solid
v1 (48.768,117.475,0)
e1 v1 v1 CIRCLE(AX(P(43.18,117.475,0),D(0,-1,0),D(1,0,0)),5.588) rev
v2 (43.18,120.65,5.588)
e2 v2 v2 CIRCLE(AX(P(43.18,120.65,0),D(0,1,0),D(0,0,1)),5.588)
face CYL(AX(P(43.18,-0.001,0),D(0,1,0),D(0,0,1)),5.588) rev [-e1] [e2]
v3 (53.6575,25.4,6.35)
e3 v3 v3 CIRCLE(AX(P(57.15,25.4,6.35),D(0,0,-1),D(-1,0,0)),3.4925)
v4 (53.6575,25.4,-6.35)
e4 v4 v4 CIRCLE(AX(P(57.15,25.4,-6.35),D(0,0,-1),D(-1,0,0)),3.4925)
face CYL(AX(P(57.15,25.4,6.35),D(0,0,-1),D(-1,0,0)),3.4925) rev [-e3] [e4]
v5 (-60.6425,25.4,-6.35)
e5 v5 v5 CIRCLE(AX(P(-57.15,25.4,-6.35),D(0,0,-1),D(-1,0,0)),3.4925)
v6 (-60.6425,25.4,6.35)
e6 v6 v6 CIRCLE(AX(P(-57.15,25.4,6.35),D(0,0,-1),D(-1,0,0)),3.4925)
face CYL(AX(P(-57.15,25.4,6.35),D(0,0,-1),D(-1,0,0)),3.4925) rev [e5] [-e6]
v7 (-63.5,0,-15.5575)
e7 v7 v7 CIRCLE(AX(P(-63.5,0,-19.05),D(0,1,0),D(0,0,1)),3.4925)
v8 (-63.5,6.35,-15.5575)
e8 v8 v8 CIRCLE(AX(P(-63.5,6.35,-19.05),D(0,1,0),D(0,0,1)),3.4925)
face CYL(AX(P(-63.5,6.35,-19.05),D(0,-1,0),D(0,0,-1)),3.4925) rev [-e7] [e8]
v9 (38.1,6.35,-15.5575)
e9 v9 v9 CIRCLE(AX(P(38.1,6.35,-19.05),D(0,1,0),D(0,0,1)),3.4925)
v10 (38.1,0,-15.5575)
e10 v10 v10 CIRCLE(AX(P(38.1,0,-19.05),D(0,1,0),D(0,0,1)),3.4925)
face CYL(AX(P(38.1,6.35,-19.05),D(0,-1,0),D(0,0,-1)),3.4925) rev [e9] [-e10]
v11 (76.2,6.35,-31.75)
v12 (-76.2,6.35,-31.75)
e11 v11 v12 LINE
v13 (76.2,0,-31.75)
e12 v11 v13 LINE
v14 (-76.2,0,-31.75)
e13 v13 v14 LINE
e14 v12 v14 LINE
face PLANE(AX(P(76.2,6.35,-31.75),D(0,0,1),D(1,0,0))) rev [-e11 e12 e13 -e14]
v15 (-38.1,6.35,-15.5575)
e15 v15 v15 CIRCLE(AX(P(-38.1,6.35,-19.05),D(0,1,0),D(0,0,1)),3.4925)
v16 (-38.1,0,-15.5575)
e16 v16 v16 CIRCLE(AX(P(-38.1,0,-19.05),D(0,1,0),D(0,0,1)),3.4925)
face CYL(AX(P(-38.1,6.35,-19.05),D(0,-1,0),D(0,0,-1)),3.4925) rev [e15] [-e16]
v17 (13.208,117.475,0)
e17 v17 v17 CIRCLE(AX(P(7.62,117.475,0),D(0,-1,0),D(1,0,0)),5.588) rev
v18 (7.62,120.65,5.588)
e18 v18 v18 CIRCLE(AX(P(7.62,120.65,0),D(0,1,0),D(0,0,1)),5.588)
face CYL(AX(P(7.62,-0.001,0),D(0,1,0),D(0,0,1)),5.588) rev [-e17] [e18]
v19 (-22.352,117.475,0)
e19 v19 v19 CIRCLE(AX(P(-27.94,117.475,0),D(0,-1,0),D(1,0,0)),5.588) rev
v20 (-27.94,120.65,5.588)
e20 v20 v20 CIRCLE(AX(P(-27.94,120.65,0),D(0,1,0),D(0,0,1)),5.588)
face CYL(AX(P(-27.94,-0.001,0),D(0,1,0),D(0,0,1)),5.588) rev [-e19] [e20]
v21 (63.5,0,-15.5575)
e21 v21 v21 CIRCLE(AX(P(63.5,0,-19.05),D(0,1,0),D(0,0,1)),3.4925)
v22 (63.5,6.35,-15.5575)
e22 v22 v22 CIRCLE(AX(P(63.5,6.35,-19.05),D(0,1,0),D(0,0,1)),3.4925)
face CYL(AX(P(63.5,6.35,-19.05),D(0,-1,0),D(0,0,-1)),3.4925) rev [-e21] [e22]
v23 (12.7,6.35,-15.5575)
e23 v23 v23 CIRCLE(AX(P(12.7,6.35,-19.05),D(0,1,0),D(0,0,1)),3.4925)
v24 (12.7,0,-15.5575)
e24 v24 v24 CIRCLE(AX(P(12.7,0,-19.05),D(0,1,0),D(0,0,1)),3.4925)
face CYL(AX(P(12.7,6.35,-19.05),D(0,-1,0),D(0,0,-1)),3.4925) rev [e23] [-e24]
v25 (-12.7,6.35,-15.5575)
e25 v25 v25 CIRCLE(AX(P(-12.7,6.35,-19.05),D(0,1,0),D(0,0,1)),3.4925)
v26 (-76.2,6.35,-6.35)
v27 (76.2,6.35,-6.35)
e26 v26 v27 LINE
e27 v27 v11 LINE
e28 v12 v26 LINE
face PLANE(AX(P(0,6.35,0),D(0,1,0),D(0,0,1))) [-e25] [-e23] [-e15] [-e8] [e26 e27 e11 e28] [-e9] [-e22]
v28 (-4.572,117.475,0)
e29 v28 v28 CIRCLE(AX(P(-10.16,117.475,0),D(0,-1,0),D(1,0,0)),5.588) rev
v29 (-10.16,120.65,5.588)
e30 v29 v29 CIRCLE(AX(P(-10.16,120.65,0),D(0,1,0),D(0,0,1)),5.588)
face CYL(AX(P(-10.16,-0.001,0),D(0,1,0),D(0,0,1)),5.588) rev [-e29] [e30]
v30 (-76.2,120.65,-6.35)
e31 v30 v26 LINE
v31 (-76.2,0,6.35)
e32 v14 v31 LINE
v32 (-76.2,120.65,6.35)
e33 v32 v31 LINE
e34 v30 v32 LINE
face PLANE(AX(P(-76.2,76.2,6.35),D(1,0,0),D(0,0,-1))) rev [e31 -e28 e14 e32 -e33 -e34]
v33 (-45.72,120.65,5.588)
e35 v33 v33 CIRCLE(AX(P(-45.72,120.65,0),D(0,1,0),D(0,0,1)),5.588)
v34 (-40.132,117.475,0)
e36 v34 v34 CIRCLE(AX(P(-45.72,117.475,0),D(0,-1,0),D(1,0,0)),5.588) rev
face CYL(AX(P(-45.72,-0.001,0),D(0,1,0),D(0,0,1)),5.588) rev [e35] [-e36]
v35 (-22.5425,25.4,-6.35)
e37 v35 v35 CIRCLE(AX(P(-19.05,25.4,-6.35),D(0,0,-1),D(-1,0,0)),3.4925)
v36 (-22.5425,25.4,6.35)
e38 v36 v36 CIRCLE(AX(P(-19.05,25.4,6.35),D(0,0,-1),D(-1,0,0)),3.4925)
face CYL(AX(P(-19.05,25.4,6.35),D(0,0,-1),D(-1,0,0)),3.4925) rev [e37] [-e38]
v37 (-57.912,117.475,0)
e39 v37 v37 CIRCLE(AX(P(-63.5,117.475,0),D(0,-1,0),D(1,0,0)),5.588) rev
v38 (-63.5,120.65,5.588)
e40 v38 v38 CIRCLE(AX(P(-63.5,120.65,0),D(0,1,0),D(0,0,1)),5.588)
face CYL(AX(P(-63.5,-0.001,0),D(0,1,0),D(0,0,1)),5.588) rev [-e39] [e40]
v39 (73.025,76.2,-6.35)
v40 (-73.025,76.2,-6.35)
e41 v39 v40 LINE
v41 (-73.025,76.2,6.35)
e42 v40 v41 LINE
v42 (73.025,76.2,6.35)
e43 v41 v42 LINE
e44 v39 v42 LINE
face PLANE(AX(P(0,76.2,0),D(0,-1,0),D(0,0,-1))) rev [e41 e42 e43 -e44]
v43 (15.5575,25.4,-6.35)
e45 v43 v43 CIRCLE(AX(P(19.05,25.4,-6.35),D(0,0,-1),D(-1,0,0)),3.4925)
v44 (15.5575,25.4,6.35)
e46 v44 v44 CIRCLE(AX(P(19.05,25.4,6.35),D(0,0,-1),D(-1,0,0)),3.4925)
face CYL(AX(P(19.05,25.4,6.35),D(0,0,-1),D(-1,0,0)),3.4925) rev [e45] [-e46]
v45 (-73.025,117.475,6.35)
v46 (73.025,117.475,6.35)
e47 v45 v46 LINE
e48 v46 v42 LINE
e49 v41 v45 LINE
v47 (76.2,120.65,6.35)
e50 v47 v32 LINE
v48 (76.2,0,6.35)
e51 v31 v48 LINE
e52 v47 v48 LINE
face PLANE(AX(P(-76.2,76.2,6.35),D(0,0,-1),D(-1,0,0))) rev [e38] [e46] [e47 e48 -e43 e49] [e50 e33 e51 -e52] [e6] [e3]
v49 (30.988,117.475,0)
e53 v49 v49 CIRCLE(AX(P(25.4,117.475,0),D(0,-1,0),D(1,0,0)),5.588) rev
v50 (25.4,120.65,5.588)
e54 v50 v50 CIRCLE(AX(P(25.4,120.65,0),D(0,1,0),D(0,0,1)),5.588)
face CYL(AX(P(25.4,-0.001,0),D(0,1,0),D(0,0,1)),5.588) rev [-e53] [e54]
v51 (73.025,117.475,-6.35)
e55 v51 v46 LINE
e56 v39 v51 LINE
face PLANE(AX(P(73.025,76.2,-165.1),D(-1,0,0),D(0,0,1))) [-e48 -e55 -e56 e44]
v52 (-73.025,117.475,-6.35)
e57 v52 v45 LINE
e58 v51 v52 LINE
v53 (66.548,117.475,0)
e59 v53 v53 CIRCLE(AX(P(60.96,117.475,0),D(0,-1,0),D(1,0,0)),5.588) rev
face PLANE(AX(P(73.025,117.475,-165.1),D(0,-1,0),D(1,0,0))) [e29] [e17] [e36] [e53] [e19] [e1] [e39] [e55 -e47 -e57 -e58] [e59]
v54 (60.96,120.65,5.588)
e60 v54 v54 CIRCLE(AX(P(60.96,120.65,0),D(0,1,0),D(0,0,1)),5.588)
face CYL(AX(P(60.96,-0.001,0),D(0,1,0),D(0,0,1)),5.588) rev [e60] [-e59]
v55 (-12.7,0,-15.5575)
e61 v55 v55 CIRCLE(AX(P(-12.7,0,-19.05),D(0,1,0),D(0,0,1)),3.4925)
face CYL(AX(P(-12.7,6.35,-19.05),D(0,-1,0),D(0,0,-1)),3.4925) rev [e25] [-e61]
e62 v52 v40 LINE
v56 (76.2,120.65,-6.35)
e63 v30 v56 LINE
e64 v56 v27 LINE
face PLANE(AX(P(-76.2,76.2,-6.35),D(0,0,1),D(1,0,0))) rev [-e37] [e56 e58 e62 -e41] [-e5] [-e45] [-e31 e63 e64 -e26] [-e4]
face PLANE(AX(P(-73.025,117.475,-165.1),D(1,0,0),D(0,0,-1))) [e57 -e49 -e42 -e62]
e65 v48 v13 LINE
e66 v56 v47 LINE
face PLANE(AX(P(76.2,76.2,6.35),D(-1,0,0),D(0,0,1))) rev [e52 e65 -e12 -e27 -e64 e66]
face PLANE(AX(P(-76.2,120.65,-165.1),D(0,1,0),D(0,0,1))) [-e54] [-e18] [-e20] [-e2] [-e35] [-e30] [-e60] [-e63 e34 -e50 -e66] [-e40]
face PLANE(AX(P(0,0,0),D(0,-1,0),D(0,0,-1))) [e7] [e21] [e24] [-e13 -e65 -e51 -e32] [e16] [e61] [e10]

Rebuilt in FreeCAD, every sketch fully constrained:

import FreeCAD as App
import Part
import Sketcher
from FreeCAD import Vector
Q = App.Units.Quantity

doc = App.newDocument("Part")
body = doc.addObject("PartDesign::Body", "Body")

# Sketch on XZ plane
sketch1 = body.newObject("Sketcher::SketchObject", "Sketch")
sketch1.AttachmentSupport = (doc.getObject("XZ_Plane"), [""])
sketch1.MapMode = "FlatFace"
sketch1.addGeometry([
    Part.LineSegment(Vector(-76.2, -6.35, 0), Vector(-76.2, 6.35, 0)),
    Part.LineSegment(Vector(-76.2, 6.35, 0), Vector(76.2, 6.35, 0)),
    Part.LineSegment(Vector(76.2, 6.35, 0), Vector(76.2, -6.35, 0)),
    Part.LineSegment(Vector(76.2, -6.35, 0), Vector(-76.2, -6.35, 0)),
], False)
sketch1.addConstraint([
    Sketcher.Constraint("Coincident", 0, 2, 1, 1),
    Sketcher.Constraint("Coincident", 1, 2, 2, 1),
    Sketcher.Constraint("Coincident", 2, 2, 3, 1),
    Sketcher.Constraint("Coincident", 3, 2, 0, 1),
    Sketcher.Constraint("Vertical", 0),
    Sketcher.Constraint("Horizontal", 1),
    Sketcher.Constraint("Vertical", 2),
    Sketcher.Constraint("Horizontal", 3),
    Sketcher.Constraint("Symmetric", 0, 2, 2, 2, -1, 1),
    Sketcher.Constraint("DistanceX", 1, 1, 1, 2, Q("6 in")),
    Sketcher.Constraint("DistanceY", 0, 1, 0, 2, Q("0.5 in")),
])
pad1 = body.newObject("PartDesign::Pad", "Pad")
pad1.Profile = sketch1
pad1.Length = Q("3 in")
pad1.Reversed = True

# Sketch on XZ plane
sketch2 = body.newObject("Sketcher::SketchObject", "Sketch001")
sketch2.AttachmentSupport = (doc.getObject("XZ_Plane"), [""])
sketch2.MapMode = "FlatFace"
sketch2.addGeometry([
    Part.LineSegment(Vector(-76.2, -6.35, 0), Vector(76.2, -6.35, 0)),  # 0
    Part.LineSegment(Vector(76.2, -6.35, 0), Vector(76.2, -31.75, 0)),  # 1
    Part.LineSegment(Vector(76.2, -31.75, 0), Vector(-76.2, -31.75, 0)),  # 2
    Part.LineSegment(Vector(-76.2, -31.75, 0), Vector(-76.2, -6.35, 0)),  # 3
    Part.Circle(Vector(-63.5, -19.05, 0), Vector(0, 0, 1), 3.4925),  # 4
    Part.Circle(Vector(-38.1, -19.05, 0), Vector(0, 0, 1), 3.4925),  # 5
    Part.Circle(Vector(-12.7, -19.05, 0), Vector(0, 0, 1), 3.4925),  # 6
    Part.Circle(Vector(12.7, -19.05, 0), Vector(0, 0, 1), 3.4925),  # 7
    Part.Circle(Vector(38.1, -19.05, 0), Vector(0, 0, 1), 3.4925),  # 8
    Part.Circle(Vector(63.5, -19.05, 0), Vector(0, 0, 1), 3.4925),  # 9
], False)
sketch2.addConstraint([
    Sketcher.Constraint("Coincident", 0, 2, 1, 1),
    Sketcher.Constraint("Coincident", 1, 2, 2, 1),
    Sketcher.Constraint("Coincident", 2, 2, 3, 1),
    Sketcher.Constraint("Coincident", 3, 2, 0, 1),
    Sketcher.Constraint("Horizontal", 0),
    Sketcher.Constraint("Vertical", 1),
    Sketcher.Constraint("Horizontal", 2),
    Sketcher.Constraint("Vertical", 3),
    Sketcher.Constraint("Equal", 4, 5),
    Sketcher.Constraint("Equal", 5, 6),
    Sketcher.Constraint("Equal", 6, 7),
    Sketcher.Constraint("Equal", 7, 8),
    Sketcher.Constraint("Equal", 8, 9),
    Sketcher.Constraint("Symmetric", 6, 3, 7, 3, -2),
    Sketcher.Constraint("Symmetric", 5, 3, 8, 3, -2),
    Sketcher.Constraint("Symmetric", 4, 3, 9, 3, -2),
    Sketcher.Constraint("Horizontal", 4, 3, 5, 3),
    Sketcher.Constraint("Horizontal", 5, 3, 6, 3),
    Sketcher.Constraint("DistanceX", 0, 1, 0, 2, Q("6 in")),
    Sketcher.Constraint("DistanceY", 1, 2, 1, 1, Q("1 in")),
    Sketcher.Constraint("Diameter", 4, Q("0.275 in")),
    Sketcher.Constraint("DistanceX", -1, 1, 0, 2, Q("3 in")),
    Sketcher.Constraint("DistanceX", 4, 3, 5, 3, Q("1 in")),
    Sketcher.Constraint("DistanceX", 5, 3, 6, 3, Q("1 in")),
    Sketcher.Constraint("DistanceX", 6, 3, 7, 3, Q("1 in")),
    Sketcher.Constraint("DistanceY", 9, 3, 0, 2, Q("0.5 in")),
    Sketcher.Constraint("DistanceY", 4, 3, -1, 1, Q("0.75 in")),
])
pad2 = body.newObject("PartDesign::Pad", "Pad001")
pad2.Profile = sketch2
pad2.Length = Q("0.25 in")
pad2.Reversed = True

# Sketch on XY plane
sketch3 = body.newObject("Sketcher::SketchObject", "Sketch002")
sketch3.AttachmentSupport = (doc.getObject("XY_Plane"), [""])
sketch3.MapMode = "FlatFace"
sketch3.AttachmentOffset = App.Placement(Vector(0, 0, 0.25 * 25.4), App.Rotation())
sketch3.addGeometry([
    Part.LineSegment(Vector(-76.2, 120.65, 0), Vector(-76.2, 76.2, 0)),  # 0
    Part.LineSegment(Vector(-76.2, 76.2, 0), Vector(-73.025, 76.2, 0)),  # 1
    Part.LineSegment(Vector(-73.025, 76.2, 0), Vector(-73.025, 117.475, 0)),  # 2
    Part.LineSegment(Vector(-73.025, 117.475, 0), Vector(73.025, 117.475, 0)),  # 3
    Part.LineSegment(Vector(73.025, 117.475, 0), Vector(73.025, 76.2, 0)),  # 4
    Part.LineSegment(Vector(73.025, 76.2, 0), Vector(76.2, 76.2, 0)),  # 5
    Part.LineSegment(Vector(76.2, 76.2, 0), Vector(76.2, 120.65, 0)),  # 6
    Part.LineSegment(Vector(76.2, 120.65, 0), Vector(-76.2, 120.65, 0)),  # 7
], False)
sketch3.addConstraint([
    Sketcher.Constraint("Coincident", 0, 2, 1, 1),
    Sketcher.Constraint("Coincident", 1, 2, 2, 1),
    Sketcher.Constraint("Coincident", 2, 2, 3, 1),
    Sketcher.Constraint("Coincident", 3, 2, 4, 1),
    Sketcher.Constraint("Coincident", 4, 2, 5, 1),
    Sketcher.Constraint("Coincident", 5, 2, 6, 1),
    Sketcher.Constraint("Coincident", 6, 2, 7, 1),
    Sketcher.Constraint("Coincident", 7, 2, 0, 1),
    Sketcher.Constraint("Vertical", 0),
    Sketcher.Constraint("Horizontal", 1),
    Sketcher.Constraint("Vertical", 2),
    Sketcher.Constraint("Horizontal", 3),
    Sketcher.Constraint("Vertical", 4),
    Sketcher.Constraint("Horizontal", 5),
    Sketcher.Constraint("Vertical", 6),
    Sketcher.Constraint("Horizontal", 7),
    Sketcher.Constraint("Symmetric", 1, 2, 4, 2, -2),
    Sketcher.Constraint("Equal", 1, 5),
    Sketcher.Constraint("DistanceX", 7, 2, 7, 1, Q("6 in")),
    Sketcher.Constraint("DistanceY", -1, 1, 0, 2, Q("3 in")),
    Sketcher.Constraint("DistanceX", 3, 1, 3, 2, Q("5.75 in")),
    Sketcher.Constraint("DistanceY", 0, 2, 0, 1, Q("1.75 in")),
    Sketcher.Constraint("DistanceY", 2, 1, 2, 2, Q("1.625 in")),
])
pad3 = body.newObject("PartDesign::Pad", "Pad002")
pad3.Profile = sketch3
pad3.Length = Q("0.5 in")
pad3.Reversed = True

# Sketch on XZ plane
sketch4 = body.newObject("Sketcher::SketchObject", "Sketch003")
sketch4.AttachmentSupport = (doc.getObject("XZ_Plane"), [""])
sketch4.MapMode = "FlatFace"
sketch4.AttachmentOffset = App.Placement(Vector(0, 0, -4.75 * 25.4), App.Rotation())
sketch4.addGeometry(Part.Circle(Vector(-63.5, 0, 0), Vector(0, 0, 1), 5.588), False)
sketch4.addConstraint([
    Sketcher.Constraint("PointOnObject", 0, 3, -1),
    Sketcher.Constraint("Diameter", 0, Q("0.44 in")),
    Sketcher.Constraint("DistanceX", 0, 3, -1, 1, Q("2.5 in")),
])
pocket1 = body.newObject("PartDesign::Pocket", "Pocket")
pocket1.Profile = sketch4
pocket1.Type = "UpToFirst"
pocket1.Reversed = True

# Sketch on XZ plane
sketch5 = body.newObject("Sketcher::SketchObject", "Sketch004")
sketch5.AttachmentSupport = (doc.getObject("XZ_Plane"), [""])
sketch5.MapMode = "FlatFace"
sketch5.AttachmentOffset = App.Placement(Vector(0, 0, -4.75 * 25.4), App.Rotation())
sketch5.addGeometry(Part.Circle(Vector(-45.72, 0, 0), Vector(0, 0, 1), 5.588), False)
sketch5.addConstraint([
    Sketcher.Constraint("PointOnObject", 0, 3, -1),
    Sketcher.Constraint("Diameter", 0, Q("0.44 in")),
    Sketcher.Constraint("DistanceX", 0, 3, -1, 1, Q("1.8 in")),
])
pocket2 = body.newObject("PartDesign::Pocket", "Pocket001")
pocket2.Profile = sketch5
pocket2.Type = "UpToFirst"
pocket2.Reversed = True

# Sketch on XZ plane
sketch6 = body.newObject("Sketcher::SketchObject", "Sketch005")
sketch6.AttachmentSupport = (doc.getObject("XZ_Plane"), [""])
sketch6.MapMode = "FlatFace"
sketch6.AttachmentOffset = App.Placement(Vector(0, 0, -4.75 * 25.4), App.Rotation())
sketch6.addGeometry(Part.Circle(Vector(-27.94, 0, 0), Vector(0, 0, 1), 5.588), False)
sketch6.addConstraint([
    Sketcher.Constraint("PointOnObject", 0, 3, -1),
    Sketcher.Constraint("Diameter", 0, Q("0.44 in")),
    Sketcher.Constraint("DistanceX", 0, 3, -1, 1, Q("1.1 in")),
])
pocket3 = body.newObject("PartDesign::Pocket", "Pocket002")
pocket3.Profile = sketch6
pocket3.Type = "UpToFirst"
pocket3.Reversed = True

# Sketch on XZ plane
sketch7 = body.newObject("Sketcher::SketchObject", "Sketch006")
sketch7.AttachmentSupport = (doc.getObject("XZ_Plane"), [""])
sketch7.MapMode = "FlatFace"
sketch7.AttachmentOffset = App.Placement(Vector(0, 0, -4.75 * 25.4), App.Rotation())
sketch7.addGeometry(Part.Circle(Vector(-10.16, 0, 0), Vector(0, 0, 1), 5.588), False)
sketch7.addConstraint([
    Sketcher.Constraint("PointOnObject", 0, 3, -1),
    Sketcher.Constraint("Diameter", 0, Q("0.44 in")),
    Sketcher.Constraint("DistanceX", 0, 3, -1, 1, Q("0.4 in")),
])
pocket4 = body.newObject("PartDesign::Pocket", "Pocket003")
pocket4.Profile = sketch7
pocket4.Type = "UpToFirst"
pocket4.Reversed = True

# Sketch on XZ plane
sketch8 = body.newObject("Sketcher::SketchObject", "Sketch007")
sketch8.AttachmentSupport = (doc.getObject("XZ_Plane"), [""])
sketch8.MapMode = "FlatFace"
sketch8.AttachmentOffset = App.Placement(Vector(0, 0, -4.75 * 25.4), App.Rotation())
sketch8.addGeometry(Part.Circle(Vector(7.62, 0, 0), Vector(0, 0, 1), 5.588), False)
sketch8.addConstraint([
    Sketcher.Constraint("PointOnObject", 0, 3, -1),
    Sketcher.Constraint("Diameter", 0, Q("0.44 in")),
    Sketcher.Constraint("DistanceX", -1, 1, 0, 3, Q("0.3 in")),
])
pocket5 = body.newObject("PartDesign::Pocket", "Pocket004")
pocket5.Profile = sketch8
pocket5.Type = "UpToFirst"
pocket5.Reversed = True

# Sketch on XZ plane
sketch9 = body.newObject("Sketcher::SketchObject", "Sketch008")
sketch9.AttachmentSupport = (doc.getObject("XZ_Plane"), [""])
sketch9.MapMode = "FlatFace"
sketch9.AttachmentOffset = App.Placement(Vector(0, 0, -4.75 * 25.4), App.Rotation())
sketch9.addGeometry(Part.Circle(Vector(25.4, 0, 0), Vector(0, 0, 1), 5.588), False)
sketch9.addConstraint([
    Sketcher.Constraint("PointOnObject", 0, 3, -1),
    Sketcher.Constraint("Diameter", 0, Q("0.44 in")),
    Sketcher.Constraint("DistanceX", -1, 1, 0, 3, Q("1 in")),
])
pocket6 = body.newObject("PartDesign::Pocket", "Pocket005")
pocket6.Profile = sketch9
pocket6.Type = "UpToFirst"
pocket6.Reversed = True

# Sketch on XZ plane
sketch10 = body.newObject("Sketcher::SketchObject", "Sketch009")
sketch10.AttachmentSupport = (doc.getObject("XZ_Plane"), [""])
sketch10.MapMode = "FlatFace"
sketch10.AttachmentOffset = App.Placement(Vector(0, 0, -4.75 * 25.4), App.Rotation())
sketch10.addGeometry(Part.Circle(Vector(43.18, 0, 0), Vector(0, 0, 1), 5.588), False)
sketch10.addConstraint([
    Sketcher.Constraint("PointOnObject", 0, 3, -1),
    Sketcher.Constraint("Diameter", 0, Q("0.44 in")),
    Sketcher.Constraint("DistanceX", -1, 1, 0, 3, Q("1.7 in")),
])
pocket7 = body.newObject("PartDesign::Pocket", "Pocket006")
pocket7.Profile = sketch10
pocket7.Type = "UpToFirst"
pocket7.Reversed = True

# Sketch on XZ plane
sketch11 = body.newObject("Sketcher::SketchObject", "Sketch010")
sketch11.AttachmentSupport = (doc.getObject("XZ_Plane"), [""])
sketch11.MapMode = "FlatFace"
sketch11.AttachmentOffset = App.Placement(Vector(0, 0, -4.75 * 25.4), App.Rotation())
sketch11.addGeometry(Part.Circle(Vector(60.96, 0, 0), Vector(0, 0, 1), 5.588), False)
sketch11.addConstraint([
    Sketcher.Constraint("PointOnObject", 0, 3, -1),
    Sketcher.Constraint("Diameter", 0, Q("0.44 in")),
    Sketcher.Constraint("DistanceX", -1, 1, 0, 3, Q("2.4 in")),
])
pocket8 = body.newObject("PartDesign::Pocket", "Pocket007")
pocket8.Profile = sketch11
pocket8.Type = "UpToFirst"
pocket8.Reversed = True

# Sketch on XY plane
sketch12 = body.newObject("Sketcher::SketchObject", "Sketch011")
sketch12.AttachmentSupport = (doc.getObject("XY_Plane"), [""])
sketch12.MapMode = "FlatFace"
sketch12.AttachmentOffset = App.Placement(Vector(0, 0, -0.25 * 25.4), App.Rotation())
sketch12.addGeometry([
    Part.Circle(Vector(57.15, 25.4, 0), Vector(0, 0, 1), 3.4925),
    Part.Circle(Vector(19.05, 25.4, 0), Vector(0, 0, 1), 3.4925),
    Part.Circle(Vector(-19.05, 25.4, 0), Vector(0, 0, 1), 3.4925),
    Part.Circle(Vector(-57.15, 25.4, 0), Vector(0, 0, 1), 3.4925),
], False)
sketch12.addConstraint([
    Sketcher.Constraint("Equal", 0, 1),
    Sketcher.Constraint("Equal", 1, 2),
    Sketcher.Constraint("Equal", 2, 3),
    Sketcher.Constraint("Symmetric", 1, 3, 2, 3, -2),
    Sketcher.Constraint("Symmetric", 0, 3, 3, 3, -2),
    Sketcher.Constraint("Horizontal", 0, 3, 1, 3),
    Sketcher.Constraint("Diameter", 0, Q("0.275 in")),
    Sketcher.Constraint("DistanceY", -1, 1, 0, 3, Q("1 in")),
    Sketcher.Constraint("DistanceX", 2, 3, 0, 3, Q("3 in")),
    Sketcher.Constraint("DistanceX", 1, 3, 0, 3, Q("1.5 in")),
])
pocket9 = body.newObject("PartDesign::Pocket", "Pocket008")
pocket9.Profile = sketch12
pocket9.Type = "ThroughAll"
pocket9.Reversed = True

doc.recompute()
